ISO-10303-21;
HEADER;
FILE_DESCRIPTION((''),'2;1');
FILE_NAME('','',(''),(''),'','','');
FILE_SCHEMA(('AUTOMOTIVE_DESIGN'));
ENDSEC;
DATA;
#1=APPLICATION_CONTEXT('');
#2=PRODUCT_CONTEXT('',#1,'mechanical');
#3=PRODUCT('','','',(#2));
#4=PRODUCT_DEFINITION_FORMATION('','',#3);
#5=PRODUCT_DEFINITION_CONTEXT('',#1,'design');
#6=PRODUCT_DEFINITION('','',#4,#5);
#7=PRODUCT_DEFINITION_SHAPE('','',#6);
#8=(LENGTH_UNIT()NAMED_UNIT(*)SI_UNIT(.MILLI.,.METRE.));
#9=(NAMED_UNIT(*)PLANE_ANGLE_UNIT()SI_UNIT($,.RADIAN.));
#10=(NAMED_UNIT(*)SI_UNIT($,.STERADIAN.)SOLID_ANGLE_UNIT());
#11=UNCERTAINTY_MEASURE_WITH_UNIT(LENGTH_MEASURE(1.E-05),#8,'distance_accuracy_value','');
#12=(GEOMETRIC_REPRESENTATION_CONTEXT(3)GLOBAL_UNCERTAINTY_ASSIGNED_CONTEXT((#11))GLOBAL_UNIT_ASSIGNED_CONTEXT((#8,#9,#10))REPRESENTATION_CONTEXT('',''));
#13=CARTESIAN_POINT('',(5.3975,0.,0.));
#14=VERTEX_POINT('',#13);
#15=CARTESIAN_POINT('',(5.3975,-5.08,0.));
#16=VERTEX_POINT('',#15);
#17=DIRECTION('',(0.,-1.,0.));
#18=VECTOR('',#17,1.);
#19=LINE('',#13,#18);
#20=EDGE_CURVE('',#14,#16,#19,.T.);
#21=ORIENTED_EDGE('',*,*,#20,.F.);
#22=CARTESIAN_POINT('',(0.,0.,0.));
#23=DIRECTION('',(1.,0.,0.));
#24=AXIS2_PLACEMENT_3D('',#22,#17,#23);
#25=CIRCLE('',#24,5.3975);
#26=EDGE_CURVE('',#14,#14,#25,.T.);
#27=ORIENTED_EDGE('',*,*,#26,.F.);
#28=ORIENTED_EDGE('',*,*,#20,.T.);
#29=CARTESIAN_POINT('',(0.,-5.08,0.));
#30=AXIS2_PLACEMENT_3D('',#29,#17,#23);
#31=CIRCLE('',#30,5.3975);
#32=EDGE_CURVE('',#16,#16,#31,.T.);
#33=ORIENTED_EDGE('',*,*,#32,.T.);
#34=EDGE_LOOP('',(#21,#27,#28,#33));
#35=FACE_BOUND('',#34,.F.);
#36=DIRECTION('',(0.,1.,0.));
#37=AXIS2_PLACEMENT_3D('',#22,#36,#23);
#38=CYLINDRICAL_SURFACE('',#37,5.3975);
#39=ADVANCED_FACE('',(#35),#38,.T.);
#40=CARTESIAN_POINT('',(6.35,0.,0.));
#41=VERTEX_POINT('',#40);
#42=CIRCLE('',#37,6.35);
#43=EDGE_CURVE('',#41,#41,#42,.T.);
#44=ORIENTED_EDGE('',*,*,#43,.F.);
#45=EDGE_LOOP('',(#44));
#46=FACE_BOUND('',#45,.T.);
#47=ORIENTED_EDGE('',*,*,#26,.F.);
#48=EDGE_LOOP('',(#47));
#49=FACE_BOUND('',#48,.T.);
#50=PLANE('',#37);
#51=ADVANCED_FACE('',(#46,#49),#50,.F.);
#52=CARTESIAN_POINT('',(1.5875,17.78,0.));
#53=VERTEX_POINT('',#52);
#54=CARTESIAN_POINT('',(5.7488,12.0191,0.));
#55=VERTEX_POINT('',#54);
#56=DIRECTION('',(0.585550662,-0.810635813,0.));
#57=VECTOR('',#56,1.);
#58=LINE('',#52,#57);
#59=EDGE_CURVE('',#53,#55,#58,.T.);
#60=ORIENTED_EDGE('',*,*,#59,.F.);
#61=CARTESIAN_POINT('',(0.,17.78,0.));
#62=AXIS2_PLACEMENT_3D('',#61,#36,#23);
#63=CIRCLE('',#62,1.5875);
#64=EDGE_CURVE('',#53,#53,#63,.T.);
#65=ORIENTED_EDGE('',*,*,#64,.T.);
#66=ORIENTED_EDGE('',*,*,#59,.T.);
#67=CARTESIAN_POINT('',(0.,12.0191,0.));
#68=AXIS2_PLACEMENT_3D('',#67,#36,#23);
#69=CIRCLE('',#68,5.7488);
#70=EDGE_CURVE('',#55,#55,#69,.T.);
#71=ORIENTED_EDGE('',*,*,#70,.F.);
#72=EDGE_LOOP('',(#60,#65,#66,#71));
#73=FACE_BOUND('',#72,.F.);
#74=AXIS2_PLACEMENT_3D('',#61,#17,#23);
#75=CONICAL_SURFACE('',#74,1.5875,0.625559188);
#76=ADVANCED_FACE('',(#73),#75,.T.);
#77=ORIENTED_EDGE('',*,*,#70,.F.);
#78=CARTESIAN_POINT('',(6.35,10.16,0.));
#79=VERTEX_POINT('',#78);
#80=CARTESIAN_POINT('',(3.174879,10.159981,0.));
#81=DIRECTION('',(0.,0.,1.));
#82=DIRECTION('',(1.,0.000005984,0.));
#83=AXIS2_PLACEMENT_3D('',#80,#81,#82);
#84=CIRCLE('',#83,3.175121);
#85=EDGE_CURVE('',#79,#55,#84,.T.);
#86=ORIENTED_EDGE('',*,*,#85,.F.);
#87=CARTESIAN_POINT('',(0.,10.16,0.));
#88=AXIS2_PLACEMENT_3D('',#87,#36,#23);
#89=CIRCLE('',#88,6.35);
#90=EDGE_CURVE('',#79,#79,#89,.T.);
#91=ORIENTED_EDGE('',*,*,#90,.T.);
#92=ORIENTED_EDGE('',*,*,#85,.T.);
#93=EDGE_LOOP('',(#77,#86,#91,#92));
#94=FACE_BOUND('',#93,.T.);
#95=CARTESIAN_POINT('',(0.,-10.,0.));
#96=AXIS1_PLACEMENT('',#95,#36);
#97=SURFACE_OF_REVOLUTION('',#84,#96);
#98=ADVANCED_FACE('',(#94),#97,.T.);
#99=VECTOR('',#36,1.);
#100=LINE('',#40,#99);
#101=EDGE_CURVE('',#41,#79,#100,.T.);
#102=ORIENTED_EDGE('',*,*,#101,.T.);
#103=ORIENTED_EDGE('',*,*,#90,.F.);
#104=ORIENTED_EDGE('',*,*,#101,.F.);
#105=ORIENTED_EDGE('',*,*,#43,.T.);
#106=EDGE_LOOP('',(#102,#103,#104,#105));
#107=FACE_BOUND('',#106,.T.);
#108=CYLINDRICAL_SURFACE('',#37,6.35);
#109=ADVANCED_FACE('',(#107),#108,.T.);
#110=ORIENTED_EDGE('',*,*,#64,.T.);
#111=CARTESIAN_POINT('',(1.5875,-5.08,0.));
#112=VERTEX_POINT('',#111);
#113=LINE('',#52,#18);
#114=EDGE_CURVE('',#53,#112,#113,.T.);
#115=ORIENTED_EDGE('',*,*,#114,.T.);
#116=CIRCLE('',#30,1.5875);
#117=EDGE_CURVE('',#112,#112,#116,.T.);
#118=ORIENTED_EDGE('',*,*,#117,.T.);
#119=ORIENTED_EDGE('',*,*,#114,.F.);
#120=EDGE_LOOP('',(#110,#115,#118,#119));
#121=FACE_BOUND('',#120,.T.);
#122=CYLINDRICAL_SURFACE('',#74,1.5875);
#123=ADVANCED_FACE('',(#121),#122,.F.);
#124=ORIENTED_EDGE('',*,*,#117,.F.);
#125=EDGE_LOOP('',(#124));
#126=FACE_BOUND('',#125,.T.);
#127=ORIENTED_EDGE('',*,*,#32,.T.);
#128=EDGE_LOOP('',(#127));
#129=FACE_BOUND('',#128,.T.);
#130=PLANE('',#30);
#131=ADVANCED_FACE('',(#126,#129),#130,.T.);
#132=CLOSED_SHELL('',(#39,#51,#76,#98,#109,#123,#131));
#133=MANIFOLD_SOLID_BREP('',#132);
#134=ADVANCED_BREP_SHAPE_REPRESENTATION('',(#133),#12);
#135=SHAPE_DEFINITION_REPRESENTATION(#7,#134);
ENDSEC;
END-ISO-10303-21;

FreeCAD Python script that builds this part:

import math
import FreeCAD as App
import Part
import Sketcher
Q = App.Units.Quantity

doc = App.newDocument("Part")
body = doc.addObject("PartDesign::Body", "Body")

# Sketch on XY plane
sketch1 = body.newObject("Sketcher::SketchObject", "Sketch")
sketch1.AttachmentSupport = (doc.getObject("XY_Plane"), [""])
sketch1.MapMode = "FlatFace"
sketch1.addGeometry(Part.LineSegment(App.Vector(1.6, 17.8, 0), App.Vector(1.6, 0, 0)), False)
sketch1.addGeometry(Part.LineSegment(App.Vector(1.6, 0, 0), App.Vector(6.3, 0, 0)), False)
sketch1.addGeometry(Part.LineSegment(App.Vector(6.3, 0, 0), App.Vector(6.3, 10.2, 0)), False)
sketch1.addGeometry(Part.ArcOfCircle(Part.Circle(App.Vector(3.2, 10.2, 0), App.Vector(0, 0, 1), 3.2), math.radians(0), math.radians(36)), False)
sketch1.addGeometry(Part.LineSegment(App.Vector(5.7, 12, 0), App.Vector(1.6, 17.8, 0)), False)
sketch1.addConstraint(Sketcher.Constraint("Coincident", 0, 2, 1, 1))
sketch1.addConstraint(Sketcher.Constraint("Coincident", 1, 2, 2, 1))
sketch1.addConstraint(Sketcher.Constraint("Tangent", 2, 2, 3, 1))
sketch1.addConstraint(Sketcher.Constraint("Tangent", 3, 2, 4, 1))
sketch1.addConstraint(Sketcher.Constraint("Coincident", 4, 2, 0, 1))
sketch1.addConstraint(Sketcher.Constraint("Vertical", 0))
sketch1.addConstraint(Sketcher.Constraint("Horizontal", 1))
sketch1.addConstraint(Sketcher.Constraint("Vertical", 2))
sketch1.addConstraint(Sketcher.Constraint("PointOnObject", 0, 2, -1))
sketch1.addConstraint(Sketcher.Constraint("DistanceY", 0, 2, 0, 1, Q("0.7 in")))
sketch1.addConstraint(Sketcher.Constraint("DistanceY", 2, 1, 2, 2, Q("0.4 in")))
sketch1.addConstraint(Sketcher.Constraint("Radius", 3, Q("0.125 in")))
sketch1.addConstraint(Sketcher.Constraint("DistanceX", -1, 1, 1, 2, Q("0.25 in")))
sketch1.addConstraint(Sketcher.Constraint("DistanceX", -1, 1, 0, 2, Q("0.0625 in")))
revolution = body.newObject("PartDesign::Revolution", "Revolution")
revolution.Profile = sketch1
revolution.ReferenceAxis = (sketch1, ["V_Axis"])
revolution.Angle = 360

# Sketch on XZ plane
sketch2 = body.newObject("Sketcher::SketchObject", "Sketch001")
sketch2.AttachmentSupport = (doc.getObject("XZ_Plane"), [""])
sketch2.MapMode = "FlatFace"
sketch2.addGeometry(Part.Circle(App.Vector(0, 0, 0), App.Vector(0, 0, 1), 5.4), False)
sketch2.addGeometry(Part.Circle(App.Vector(0, 0, 0), App.Vector(0, 0, 1), 1.6), False)
sketch2.addConstraint(Sketcher.Constraint("Coincident", 0, 3, -1, 1))
sketch2.addConstraint(Sketcher.Constraint("Coincident", 1, 3, -1, 1))
sketch2.addConstraint(Sketcher.Constraint("Diameter", 0, Q("0.425 in")))
sketch2.addConstraint(Sketcher.Constraint("Diameter", 1, Q("0.125 in")))
pad1 = body.newObject("PartDesign::Pad", "Pad")
pad1.Profile = sketch2
pad1.Length = Q("0.2 in")

doc.recompute()
